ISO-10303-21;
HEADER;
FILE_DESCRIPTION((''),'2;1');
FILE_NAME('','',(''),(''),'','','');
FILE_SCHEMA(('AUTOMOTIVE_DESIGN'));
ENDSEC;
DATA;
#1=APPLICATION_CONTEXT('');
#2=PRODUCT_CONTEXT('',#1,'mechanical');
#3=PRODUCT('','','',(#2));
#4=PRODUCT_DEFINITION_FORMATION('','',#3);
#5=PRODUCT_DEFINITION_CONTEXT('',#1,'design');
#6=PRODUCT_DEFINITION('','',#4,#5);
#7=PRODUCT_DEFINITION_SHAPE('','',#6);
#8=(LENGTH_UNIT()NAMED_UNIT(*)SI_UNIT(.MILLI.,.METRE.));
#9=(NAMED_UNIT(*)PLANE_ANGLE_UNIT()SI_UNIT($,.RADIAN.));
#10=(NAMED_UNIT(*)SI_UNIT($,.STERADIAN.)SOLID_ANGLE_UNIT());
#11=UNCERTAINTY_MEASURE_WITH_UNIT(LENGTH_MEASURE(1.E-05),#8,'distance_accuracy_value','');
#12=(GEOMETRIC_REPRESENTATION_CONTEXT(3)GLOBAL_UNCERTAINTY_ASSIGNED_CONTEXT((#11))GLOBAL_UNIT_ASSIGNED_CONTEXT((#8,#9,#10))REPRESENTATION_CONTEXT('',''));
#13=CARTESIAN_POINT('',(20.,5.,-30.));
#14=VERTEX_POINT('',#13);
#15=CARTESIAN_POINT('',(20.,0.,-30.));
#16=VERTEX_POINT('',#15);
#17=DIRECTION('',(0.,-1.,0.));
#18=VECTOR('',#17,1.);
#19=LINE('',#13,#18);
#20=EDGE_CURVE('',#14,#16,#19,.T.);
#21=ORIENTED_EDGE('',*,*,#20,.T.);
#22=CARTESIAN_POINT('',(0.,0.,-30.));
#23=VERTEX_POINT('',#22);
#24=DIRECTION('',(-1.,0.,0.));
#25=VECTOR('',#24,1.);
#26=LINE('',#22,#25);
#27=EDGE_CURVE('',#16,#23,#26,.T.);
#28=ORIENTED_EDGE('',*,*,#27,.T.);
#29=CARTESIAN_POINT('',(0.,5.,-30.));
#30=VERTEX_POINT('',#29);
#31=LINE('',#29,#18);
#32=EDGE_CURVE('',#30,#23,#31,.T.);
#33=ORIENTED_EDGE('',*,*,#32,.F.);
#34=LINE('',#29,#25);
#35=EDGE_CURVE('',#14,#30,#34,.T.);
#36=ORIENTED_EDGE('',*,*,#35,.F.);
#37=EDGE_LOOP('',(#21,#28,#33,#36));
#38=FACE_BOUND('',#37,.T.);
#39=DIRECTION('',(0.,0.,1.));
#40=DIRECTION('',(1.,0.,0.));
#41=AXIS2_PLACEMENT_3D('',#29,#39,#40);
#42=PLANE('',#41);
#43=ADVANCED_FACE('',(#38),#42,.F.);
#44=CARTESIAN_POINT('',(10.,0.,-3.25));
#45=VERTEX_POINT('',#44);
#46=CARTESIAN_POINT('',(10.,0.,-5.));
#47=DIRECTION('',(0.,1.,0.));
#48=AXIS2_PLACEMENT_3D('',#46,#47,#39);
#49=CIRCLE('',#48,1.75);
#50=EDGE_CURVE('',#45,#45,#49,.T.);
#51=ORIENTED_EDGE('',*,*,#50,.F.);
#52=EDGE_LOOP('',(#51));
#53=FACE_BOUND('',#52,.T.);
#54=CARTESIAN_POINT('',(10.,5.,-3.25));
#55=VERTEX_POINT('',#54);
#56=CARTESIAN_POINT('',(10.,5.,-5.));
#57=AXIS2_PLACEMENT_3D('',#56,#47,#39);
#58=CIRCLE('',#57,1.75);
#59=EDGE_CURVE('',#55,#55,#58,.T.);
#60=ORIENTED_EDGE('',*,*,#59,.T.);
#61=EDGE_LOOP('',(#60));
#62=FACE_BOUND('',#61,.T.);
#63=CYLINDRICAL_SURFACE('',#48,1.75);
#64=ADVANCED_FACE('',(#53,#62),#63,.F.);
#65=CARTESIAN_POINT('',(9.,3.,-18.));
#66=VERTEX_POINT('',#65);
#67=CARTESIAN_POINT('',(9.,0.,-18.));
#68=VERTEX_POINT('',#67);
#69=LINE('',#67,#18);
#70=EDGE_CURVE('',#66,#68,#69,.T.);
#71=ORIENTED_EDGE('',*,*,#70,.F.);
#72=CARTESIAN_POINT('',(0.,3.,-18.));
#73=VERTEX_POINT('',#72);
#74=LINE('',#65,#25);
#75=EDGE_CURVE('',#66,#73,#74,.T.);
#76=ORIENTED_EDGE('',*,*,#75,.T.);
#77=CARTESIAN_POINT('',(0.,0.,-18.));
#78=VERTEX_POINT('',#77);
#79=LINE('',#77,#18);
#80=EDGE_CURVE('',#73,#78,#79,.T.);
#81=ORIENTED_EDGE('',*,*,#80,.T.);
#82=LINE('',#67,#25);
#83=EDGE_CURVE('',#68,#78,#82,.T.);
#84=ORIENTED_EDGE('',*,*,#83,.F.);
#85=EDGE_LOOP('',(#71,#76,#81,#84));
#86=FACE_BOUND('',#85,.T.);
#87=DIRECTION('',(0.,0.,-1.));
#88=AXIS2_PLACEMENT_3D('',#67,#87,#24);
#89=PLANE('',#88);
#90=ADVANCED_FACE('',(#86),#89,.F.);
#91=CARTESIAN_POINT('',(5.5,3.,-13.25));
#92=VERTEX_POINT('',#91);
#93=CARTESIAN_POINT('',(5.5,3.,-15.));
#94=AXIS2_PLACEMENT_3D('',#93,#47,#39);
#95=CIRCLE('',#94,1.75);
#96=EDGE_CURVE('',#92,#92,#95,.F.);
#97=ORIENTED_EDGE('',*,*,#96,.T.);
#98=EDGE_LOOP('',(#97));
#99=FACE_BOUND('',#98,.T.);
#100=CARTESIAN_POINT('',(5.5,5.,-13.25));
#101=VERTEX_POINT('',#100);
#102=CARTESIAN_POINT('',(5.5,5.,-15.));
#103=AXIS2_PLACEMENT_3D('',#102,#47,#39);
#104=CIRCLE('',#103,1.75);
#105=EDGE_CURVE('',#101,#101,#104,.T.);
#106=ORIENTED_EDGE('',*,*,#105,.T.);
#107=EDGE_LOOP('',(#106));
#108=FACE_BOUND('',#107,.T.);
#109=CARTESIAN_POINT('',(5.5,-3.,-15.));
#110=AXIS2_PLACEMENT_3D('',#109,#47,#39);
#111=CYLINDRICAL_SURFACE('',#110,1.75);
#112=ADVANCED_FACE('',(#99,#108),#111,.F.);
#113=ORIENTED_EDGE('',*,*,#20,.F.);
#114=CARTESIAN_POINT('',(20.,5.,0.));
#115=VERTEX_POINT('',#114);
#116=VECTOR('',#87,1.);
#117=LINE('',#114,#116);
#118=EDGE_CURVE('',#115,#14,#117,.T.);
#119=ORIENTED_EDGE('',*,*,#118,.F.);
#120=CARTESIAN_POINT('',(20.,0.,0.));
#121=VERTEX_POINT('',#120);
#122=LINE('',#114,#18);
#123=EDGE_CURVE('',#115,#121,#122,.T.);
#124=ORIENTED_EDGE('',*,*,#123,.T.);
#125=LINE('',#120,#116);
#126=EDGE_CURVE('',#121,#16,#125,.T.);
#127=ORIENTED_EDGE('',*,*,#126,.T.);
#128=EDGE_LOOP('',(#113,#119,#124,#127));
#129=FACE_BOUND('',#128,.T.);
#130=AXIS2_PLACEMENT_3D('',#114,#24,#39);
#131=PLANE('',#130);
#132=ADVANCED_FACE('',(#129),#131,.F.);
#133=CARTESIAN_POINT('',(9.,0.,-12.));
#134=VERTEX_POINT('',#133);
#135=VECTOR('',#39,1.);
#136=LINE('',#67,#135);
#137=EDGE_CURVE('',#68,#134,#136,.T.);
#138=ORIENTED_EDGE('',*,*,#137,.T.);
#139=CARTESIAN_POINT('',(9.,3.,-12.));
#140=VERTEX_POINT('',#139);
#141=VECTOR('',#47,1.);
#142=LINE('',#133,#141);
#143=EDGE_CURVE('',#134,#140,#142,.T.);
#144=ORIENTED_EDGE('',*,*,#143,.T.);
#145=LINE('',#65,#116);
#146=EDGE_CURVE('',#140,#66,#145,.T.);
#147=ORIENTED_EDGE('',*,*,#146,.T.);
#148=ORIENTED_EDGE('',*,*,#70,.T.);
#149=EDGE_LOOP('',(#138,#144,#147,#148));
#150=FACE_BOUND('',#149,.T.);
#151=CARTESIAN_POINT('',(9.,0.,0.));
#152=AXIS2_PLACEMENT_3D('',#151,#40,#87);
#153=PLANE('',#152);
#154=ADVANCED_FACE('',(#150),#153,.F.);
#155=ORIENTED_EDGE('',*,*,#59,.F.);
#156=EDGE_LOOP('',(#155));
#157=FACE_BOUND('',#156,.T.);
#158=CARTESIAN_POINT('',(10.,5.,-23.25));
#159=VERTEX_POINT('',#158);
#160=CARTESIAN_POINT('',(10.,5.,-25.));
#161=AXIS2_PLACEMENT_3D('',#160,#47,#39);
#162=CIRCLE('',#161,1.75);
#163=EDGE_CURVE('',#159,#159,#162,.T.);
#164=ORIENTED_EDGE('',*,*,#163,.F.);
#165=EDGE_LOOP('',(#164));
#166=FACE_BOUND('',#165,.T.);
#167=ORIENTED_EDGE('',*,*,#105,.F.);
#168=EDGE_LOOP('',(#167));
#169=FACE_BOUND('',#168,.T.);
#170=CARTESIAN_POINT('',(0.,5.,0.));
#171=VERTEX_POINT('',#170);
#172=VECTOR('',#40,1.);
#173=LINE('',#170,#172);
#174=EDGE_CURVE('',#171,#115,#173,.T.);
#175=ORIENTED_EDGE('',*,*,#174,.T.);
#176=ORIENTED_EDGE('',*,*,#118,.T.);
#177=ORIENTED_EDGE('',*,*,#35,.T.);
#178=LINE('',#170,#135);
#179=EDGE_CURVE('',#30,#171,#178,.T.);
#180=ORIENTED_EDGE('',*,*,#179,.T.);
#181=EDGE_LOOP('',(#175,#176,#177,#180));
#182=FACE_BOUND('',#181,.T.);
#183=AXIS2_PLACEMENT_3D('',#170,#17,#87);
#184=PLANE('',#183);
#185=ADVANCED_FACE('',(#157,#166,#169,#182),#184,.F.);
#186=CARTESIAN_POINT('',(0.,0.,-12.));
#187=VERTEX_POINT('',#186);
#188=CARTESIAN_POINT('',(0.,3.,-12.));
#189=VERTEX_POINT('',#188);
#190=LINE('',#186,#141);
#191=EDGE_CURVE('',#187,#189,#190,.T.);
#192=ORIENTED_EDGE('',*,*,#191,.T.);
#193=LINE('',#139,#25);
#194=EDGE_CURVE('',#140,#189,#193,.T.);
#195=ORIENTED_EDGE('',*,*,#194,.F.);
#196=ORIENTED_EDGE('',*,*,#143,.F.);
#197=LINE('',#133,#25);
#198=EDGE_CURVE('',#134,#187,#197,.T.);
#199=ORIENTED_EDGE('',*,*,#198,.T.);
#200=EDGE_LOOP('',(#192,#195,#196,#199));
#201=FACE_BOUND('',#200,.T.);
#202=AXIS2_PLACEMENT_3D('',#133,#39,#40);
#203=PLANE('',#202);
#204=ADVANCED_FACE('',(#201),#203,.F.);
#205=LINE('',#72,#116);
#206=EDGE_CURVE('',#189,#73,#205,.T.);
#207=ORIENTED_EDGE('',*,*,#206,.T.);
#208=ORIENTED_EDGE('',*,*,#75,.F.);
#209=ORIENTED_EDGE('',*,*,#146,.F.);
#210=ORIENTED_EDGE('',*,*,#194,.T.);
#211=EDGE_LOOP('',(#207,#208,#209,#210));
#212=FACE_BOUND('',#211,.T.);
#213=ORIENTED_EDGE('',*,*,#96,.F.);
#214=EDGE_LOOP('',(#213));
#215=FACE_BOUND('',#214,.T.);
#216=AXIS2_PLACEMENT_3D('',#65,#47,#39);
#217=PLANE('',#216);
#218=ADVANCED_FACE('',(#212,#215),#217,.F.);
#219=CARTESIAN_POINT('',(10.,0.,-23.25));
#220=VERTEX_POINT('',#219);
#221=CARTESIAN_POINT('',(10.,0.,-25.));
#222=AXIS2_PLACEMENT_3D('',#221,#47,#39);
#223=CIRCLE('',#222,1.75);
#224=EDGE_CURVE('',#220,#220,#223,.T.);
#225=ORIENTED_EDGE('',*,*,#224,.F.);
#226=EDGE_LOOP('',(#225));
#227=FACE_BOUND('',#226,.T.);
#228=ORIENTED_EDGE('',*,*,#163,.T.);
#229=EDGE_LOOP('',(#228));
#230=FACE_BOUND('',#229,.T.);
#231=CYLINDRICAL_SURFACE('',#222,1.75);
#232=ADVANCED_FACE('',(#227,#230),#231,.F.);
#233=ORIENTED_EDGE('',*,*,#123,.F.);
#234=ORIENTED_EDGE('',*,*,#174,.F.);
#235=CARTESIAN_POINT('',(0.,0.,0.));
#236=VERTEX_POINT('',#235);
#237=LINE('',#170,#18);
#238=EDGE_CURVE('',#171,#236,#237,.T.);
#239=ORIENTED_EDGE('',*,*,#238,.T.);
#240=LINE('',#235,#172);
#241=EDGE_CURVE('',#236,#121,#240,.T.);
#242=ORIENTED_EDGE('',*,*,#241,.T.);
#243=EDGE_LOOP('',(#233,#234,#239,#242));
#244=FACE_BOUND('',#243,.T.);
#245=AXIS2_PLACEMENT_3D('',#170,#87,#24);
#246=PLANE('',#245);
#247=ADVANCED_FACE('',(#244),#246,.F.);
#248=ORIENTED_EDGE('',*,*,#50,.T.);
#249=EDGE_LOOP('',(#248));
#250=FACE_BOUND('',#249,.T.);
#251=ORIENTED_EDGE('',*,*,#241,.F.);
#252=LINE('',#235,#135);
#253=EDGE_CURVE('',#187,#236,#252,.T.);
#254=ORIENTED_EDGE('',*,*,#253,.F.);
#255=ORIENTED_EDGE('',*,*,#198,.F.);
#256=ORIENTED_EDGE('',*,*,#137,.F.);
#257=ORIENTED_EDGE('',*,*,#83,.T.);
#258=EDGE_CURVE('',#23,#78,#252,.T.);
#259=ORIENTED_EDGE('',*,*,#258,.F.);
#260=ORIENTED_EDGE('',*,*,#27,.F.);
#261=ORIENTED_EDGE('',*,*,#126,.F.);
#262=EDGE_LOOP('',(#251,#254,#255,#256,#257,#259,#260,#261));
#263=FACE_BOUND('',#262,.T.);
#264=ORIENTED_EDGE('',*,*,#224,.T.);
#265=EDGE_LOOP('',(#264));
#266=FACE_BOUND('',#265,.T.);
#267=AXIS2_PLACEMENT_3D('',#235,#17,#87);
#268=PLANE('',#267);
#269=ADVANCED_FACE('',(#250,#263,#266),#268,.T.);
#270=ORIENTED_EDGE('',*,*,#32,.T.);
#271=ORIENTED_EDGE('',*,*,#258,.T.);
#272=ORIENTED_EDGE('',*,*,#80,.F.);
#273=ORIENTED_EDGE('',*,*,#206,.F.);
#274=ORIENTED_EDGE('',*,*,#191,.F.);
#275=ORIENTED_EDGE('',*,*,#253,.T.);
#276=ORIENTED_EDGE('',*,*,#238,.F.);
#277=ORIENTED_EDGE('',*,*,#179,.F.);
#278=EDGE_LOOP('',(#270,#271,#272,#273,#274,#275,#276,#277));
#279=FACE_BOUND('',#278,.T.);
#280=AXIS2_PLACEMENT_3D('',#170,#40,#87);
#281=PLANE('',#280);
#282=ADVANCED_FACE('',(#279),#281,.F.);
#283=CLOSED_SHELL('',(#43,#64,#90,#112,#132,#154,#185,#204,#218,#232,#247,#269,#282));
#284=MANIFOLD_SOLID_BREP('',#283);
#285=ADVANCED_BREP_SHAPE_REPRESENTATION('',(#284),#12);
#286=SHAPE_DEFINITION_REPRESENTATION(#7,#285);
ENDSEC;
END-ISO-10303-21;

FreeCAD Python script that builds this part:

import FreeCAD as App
import Part
import Sketcher

V = App.Vector
Q = App.Units.Quantity


def add_polygon(sketch, points):
    """Adds a closed chain of lines whose ends are joined by coincident constraints."""
    first, n = sketch.GeometryCount, len(points)
    for a, b in zip(points, points[1:] + points[:1]):
        sketch.addGeometry(Part.LineSegment(App.Vector(*a, 0), App.Vector(*b, 0)), False)
    for i in range(n):
        sketch.addConstraint(Sketcher.Constraint("Coincident", first + i, 2, first + (i + 1) % n, 1))

doc = App.newDocument("Part")
body = doc.addObject("PartDesign::Body", "Body")

# Sketch on XZ plane
sketch1 = body.newObject("Sketcher::SketchObject", "Sketch")
sketch1.AttachmentSupport = (doc.getObject("XZ_Plane"), [""])
sketch1.MapMode = "FlatFace"
add_polygon(sketch1, [(0, -30), (0, 0), (20, 0), (20, -30)])  # lines 0-3
sketch1.addConstraint(Sketcher.Constraint("Vertical", 0))
sketch1.addConstraint(Sketcher.Constraint("Horizontal", 1))
sketch1.addConstraint(Sketcher.Constraint("Vertical", 2))
sketch1.addConstraint(Sketcher.Constraint("Horizontal", 3))
sketch1.addConstraint(Sketcher.Constraint("Coincident", 0, 2, -1, 1))
sketch1.addConstraint(Sketcher.Constraint("DistanceX", 1, 1, 1, 2, Q("20 mm")))
sketch1.addConstraint(Sketcher.Constraint("DistanceY", 0, 1, 0, 2, Q("30 mm")))
pad1 = body.newObject("PartDesign::Pad", "Pad")
pad1.Profile = sketch1
pad1.Length = 5
pad1.Reversed = True

# Sketch on XZ plane
sketch2 = body.newObject("Sketcher::SketchObject", "Sketch001")
sketch2.AttachmentSupport = (doc.getObject("XZ_Plane"), [""])
sketch2.MapMode = "FlatFace"
sketch2.AttachmentOffset = App.Placement(V(0, 0, -5), App.Rotation())
sketch2.addGeometry(Part.Circle(V(5.5, -15, 0), V(0, 0, 1), 1.75), False)
sketch2.addConstraint(Sketcher.Constraint("Diameter", 0, Q("3.5 mm")))
sketch2.addConstraint(Sketcher.Constraint("DistanceY", 0, 3, -1, 1, Q("15 mm")))
sketch2.addConstraint(Sketcher.Constraint("DistanceX", -1, 1, 0, 3, Q("5.5 mm")))
pocket1 = body.newObject("PartDesign::Pocket", "Pocket")
pocket1.Profile = sketch2
pocket1.Length = 8
pocket1.Reversed = True

# Sketch on XZ plane
sketch3 = body.newObject("Sketcher::SketchObject", "Sketch002")
sketch3.AttachmentSupport = (doc.getObject("XZ_Plane"), [""])
sketch3.MapMode = "FlatFace"
sketch3.AttachmentOffset = App.Placement(V(0, 0, -5), App.Rotation())
sketch3.addGeometry(Part.Circle(V(10, -25, 0), V(0, 0, 1), 1.75), False)
sketch3.addGeometry(Part.Circle(V(10, -5, 0), V(0, 0, 1), 1.75), False)
sketch3.addConstraint(Sketcher.Constraint("Equal", 0, 1))
sketch3.addConstraint(Sketcher.Constraint("Vertical", 0, 3, 1, 3))
sketch3.addConstraint(Sketcher.Constraint("Diameter", 0, Q("3.5 mm")))
sketch3.addConstraint(Sketcher.Constraint("DistanceX", -1, 1, 0, 3, Q("10 mm")))
sketch3.addConstraint(Sketcher.Constraint("DistanceY", 0, 3, -1, 1, Q("25 mm")))
sketch3.addConstraint(Sketcher.Constraint("DistanceY", 1, 3, -1, 1, Q("5 mm")))
pocket2 = body.newObject("PartDesign::Pocket", "Pocket001")
pocket2.Profile = sketch3
pocket2.Type = "ThroughAll"
pocket2.Reversed = True

# Sketch on YZ plane
sketch4 = body.newObject("Sketcher::SketchObject", "Sketch003")
sketch4.AttachmentSupport = (doc.getObject("YZ_Plane"), [""])
sketch4.MapMode = "FlatFace"
add_polygon(sketch4, [(3, -18), (0, -18), (0, -12), (3, -12)])  # lines 0-3
sketch4.addConstraint(Sketcher.Constraint("Horizontal", 0))
sketch4.addConstraint(Sketcher.Constraint("Vertical", 1))
sketch4.addConstraint(Sketcher.Constraint("Horizontal", 2))
sketch4.addConstraint(Sketcher.Constraint("Vertical", 3))
sketch4.addConstraint(Sketcher.Constraint("PointOnObject", 0, 2, -2))
sketch4.addConstraint(Sketcher.Constraint("DistanceX", 0, 2, 0, 1, Q("3 mm")))
sketch4.addConstraint(Sketcher.Constraint("DistanceY", 1, 1, 1, 2, Q("6 mm")))
sketch4.addConstraint(Sketcher.Constraint("DistanceY", 0, 2, -1, 1, Q("18 mm")))
pocket3 = body.newObject("PartDesign::Pocket", "Pocket002")
pocket3.Profile = sketch4
pocket3.Length = 9
pocket3.Reversed = True

doc.recompute()
